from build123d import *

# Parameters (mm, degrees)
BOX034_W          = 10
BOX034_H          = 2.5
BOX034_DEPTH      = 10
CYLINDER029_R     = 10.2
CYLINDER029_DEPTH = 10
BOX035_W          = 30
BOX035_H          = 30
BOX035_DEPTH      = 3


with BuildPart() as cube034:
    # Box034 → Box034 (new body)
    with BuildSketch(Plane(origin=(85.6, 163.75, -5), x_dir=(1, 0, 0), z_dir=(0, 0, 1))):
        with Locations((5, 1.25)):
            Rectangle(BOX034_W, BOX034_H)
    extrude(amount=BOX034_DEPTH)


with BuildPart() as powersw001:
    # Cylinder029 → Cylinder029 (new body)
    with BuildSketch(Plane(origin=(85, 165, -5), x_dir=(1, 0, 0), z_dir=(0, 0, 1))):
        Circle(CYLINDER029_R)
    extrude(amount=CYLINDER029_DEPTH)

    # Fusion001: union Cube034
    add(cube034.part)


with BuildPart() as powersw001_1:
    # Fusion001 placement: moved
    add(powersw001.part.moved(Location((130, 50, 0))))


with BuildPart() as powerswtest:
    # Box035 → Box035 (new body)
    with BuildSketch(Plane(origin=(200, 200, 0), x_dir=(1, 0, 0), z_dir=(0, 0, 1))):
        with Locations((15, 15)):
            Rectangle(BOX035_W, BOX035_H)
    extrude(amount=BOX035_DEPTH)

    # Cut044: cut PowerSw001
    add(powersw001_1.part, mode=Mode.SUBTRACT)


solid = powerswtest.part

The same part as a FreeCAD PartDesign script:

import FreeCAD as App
import Part
import Sketcher
from FreeCAD import Vector


def add_polygon(sketch, points):
    """Adds a closed chain of lines whose ends are joined by coincident constraints."""
    first, n = sketch.GeometryCount, len(points)
    for a, b in zip(points, points[1:] + points[:1]):
        sketch.addGeometry(Part.LineSegment(App.Vector(*a, 0), App.Vector(*b, 0)), False)
    for i in range(n):
        sketch.addConstraint(Sketcher.Constraint("Coincident", first + i, 2, first + (i + 1) % n, 1))

doc = App.newDocument("Part")
params = doc.addObject("Spreadsheet::Sheet", "Params")
for row, (alias, value) in enumerate([
    ("sketch1_width", "10 mm"),
    ("sketch1_height", "2.5 mm"),
    ("pad1_length", "10 mm"),
    ("sketch2_diameter", "20.4 mm"),
    ("pad2_length", "10 mm"),
    ("sketch3_width", "30 mm"),
    ("pad3_length", "3 mm"),
], start=1):
    params.set(f"A{row}", alias)
    params.set(f"B{row}", "=" + value)
    params.setAlias(f"B{row}", alias)

body = doc.addObject("PartDesign::Body", "Body")

# Sketch on XY plane
sketch1 = doc.addObject("Sketcher::SketchObject", "Sketch")
body.addObject(sketch1)
sketch1.AttachmentSupport = (doc.XY_Plane, [""])
sketch1.MapMode = "FlatFace"
sketch1.AttachmentOffset = App.Placement(Vector(0, 0, -5), App.Rotation())
add_polygon(sketch1, [(85.6, 166.2), (85.6, 163.8), (95.6, 163.8), (95.6, 166.2)])  # lines 0-3
sketch1.addConstraint([
    Sketcher.Constraint("Vertical", 0),
    Sketcher.Constraint("Horizontal", 1),
    Sketcher.Constraint("Vertical", 2),
    Sketcher.Constraint("Horizontal", 3),
    Sketcher.Constraint("DistanceX", 1, 1, 1, 2, 10.0),
    Sketcher.Constraint("DistanceY", 0, 2, 0, 1, 2.5),
    Sketcher.Constraint("DistanceX", -1, 1, 0, 2, 85.6),
    Sketcher.Constraint("DistanceY", -1, 1, 0, 2, 163.75),
])
sketch1.setExpression("Constraints[8]", "Params.sketch1_width")
sketch1.setExpression("Constraints[9]", "Params.sketch1_height")
pad1 = doc.addObject("PartDesign::Pad", "Pad")
body.addObject(pad1)
pad1.Profile = sketch1
pad1.setExpression("Length", "Params.pad1_length")
body2 = doc.addObject("PartDesign::Body", "Body001")

# Sketch on XY plane
sketch2 = doc.addObject("Sketcher::SketchObject", "Sketch001")
body2.addObject(sketch2)
sketch2.AttachmentSupport = (doc.getObject("XY_Plane001"), [""])
sketch2.MapMode = "FlatFace"
sketch2.AttachmentOffset = App.Placement(Vector(0, 0, -5), App.Rotation())
sketch2.addGeometry(Part.Circle(Vector(85, 165, 0), Vector(0, 0, 1), 10), False)
sketch2.addConstraint([
    Sketcher.Constraint("Diameter", 0, 20.4),
    Sketcher.Constraint("DistanceX", -1, 1, 0, 3, 85.0),
    Sketcher.Constraint("DistanceY", -1, 1, 0, 3, 165.0),
])
sketch2.setExpression("Constraints[0]", "Params.sketch2_diameter")
pad2 = doc.addObject("PartDesign::Pad", "Pad001")
body2.addObject(pad2)
pad2.Profile = sketch2
pad2.setExpression("Length", "Params.pad2_length")
doc.recompute()

boolean = doc.addObject("PartDesign::Boolean", "Boolean")
body2.addObject(boolean)
boolean.Type = "Fuse"
boolean.addObjects([body])
body3 = doc.addObject("PartDesign::Body", "Body002")
doc.recompute()

body2.Placement = App.Placement(Vector(130, 50, 0), App.Rotation(Vector(0, 0, 1), 0))
boolean2 = doc.addObject("PartDesign::Boolean", "Boolean001")
body3.addObject(boolean2)
boolean2.Type = "Fuse"
boolean2.addObjects([body2])
body4 = doc.addObject("PartDesign::Body", "Body003")

# Sketch on XY plane
sketch3 = doc.addObject("Sketcher::SketchObject", "Sketch002")
body4.addObject(sketch3)
sketch3.AttachmentSupport = (doc.getObject("XY_Plane003"), [""])
sketch3.MapMode = "FlatFace"
add_polygon(sketch3, [(200, 230), (200, 200), (230, 200), (230, 230)])  # lines 0-3
sketch3.addConstraint([
    Sketcher.Constraint("Vertical", 0),
    Sketcher.Constraint("Horizontal", 1),
    Sketcher.Constraint("Vertical", 2),
    Sketcher.Constraint("Horizontal", 3),
    Sketcher.Constraint("Equal", 3, 0),
    Sketcher.Constraint("DistanceX", 1, 1, 1, 2, 30.0),
    Sketcher.Constraint("DistanceX", -1, 1, 0, 2, 200.0),
    Sketcher.Constraint("DistanceY", -1, 1, 0, 2, 200.0),
])
sketch3.setExpression("Constraints[9]", "Params.sketch3_width")
pad3 = doc.addObject("PartDesign::Pad", "Pad002")
body4.addObject(pad3)
pad3.Profile = sketch3
pad3.setExpression("Length", "Params.pad3_length")
doc.recompute()

boolean3 = doc.addObject("PartDesign::Boolean", "Boolean002")
body4.addObject(boolean3)
boolean3.Type = "Cut"
boolean3.addObjects([body3])

doc.recompute()
